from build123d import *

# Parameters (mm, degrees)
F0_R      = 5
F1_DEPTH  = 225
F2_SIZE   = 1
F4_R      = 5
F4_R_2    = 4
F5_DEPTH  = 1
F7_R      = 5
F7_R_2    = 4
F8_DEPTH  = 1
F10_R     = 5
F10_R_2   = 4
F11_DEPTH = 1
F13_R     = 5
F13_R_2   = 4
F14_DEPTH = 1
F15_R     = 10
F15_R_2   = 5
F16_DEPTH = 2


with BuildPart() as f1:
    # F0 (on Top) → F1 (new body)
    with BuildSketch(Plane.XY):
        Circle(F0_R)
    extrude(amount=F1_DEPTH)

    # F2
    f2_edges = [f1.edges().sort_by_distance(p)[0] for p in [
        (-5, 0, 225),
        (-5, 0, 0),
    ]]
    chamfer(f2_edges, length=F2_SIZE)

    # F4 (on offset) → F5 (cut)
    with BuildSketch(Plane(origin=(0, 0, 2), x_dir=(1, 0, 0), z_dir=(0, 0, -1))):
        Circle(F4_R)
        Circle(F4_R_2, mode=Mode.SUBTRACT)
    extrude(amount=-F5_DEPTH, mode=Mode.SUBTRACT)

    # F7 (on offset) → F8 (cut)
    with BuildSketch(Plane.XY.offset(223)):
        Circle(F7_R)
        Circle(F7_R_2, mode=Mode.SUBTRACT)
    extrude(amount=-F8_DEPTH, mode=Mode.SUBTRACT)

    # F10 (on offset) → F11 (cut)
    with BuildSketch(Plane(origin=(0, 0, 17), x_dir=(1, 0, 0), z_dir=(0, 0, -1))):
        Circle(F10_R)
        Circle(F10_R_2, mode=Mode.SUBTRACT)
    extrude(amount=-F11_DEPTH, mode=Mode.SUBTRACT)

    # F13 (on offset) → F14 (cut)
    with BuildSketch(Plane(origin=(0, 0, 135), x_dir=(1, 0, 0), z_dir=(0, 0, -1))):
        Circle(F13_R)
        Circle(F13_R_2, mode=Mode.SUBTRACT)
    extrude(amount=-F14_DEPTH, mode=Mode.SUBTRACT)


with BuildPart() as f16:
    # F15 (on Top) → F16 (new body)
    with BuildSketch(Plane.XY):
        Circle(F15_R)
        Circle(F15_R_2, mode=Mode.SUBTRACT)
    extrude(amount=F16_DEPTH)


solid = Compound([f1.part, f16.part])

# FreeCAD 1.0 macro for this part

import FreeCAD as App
import Part
import Sketcher


def edges_at(feature, points):
    """Names of the edges that pass closest to the given points."""
    edges = feature.Shape.Edges
    near = lambda p: min(range(len(edges)), key=lambda i: edges[i].distToShape(Part.Vertex(*p))[0])
    return sorted({f"Edge{near(p) + 1}" for p in points})

doc = App.newDocument("Part")
params = doc.addObject("Spreadsheet::Sheet", "Params")
for row, (alias, value) in enumerate([
    ("sketch1_diameter", "10 mm"),
    ("pad1_length", "225 mm"),
    ("chamfer_size", "1 mm"),
    ("sketch2_diameter", "10 mm"),
    ("sketch2_diameter2", "8 mm"),
    ("pocket1_length", "1 mm"),
    ("sketch3_diameter", "10 mm"),
    ("sketch3_diameter2", "8 mm"),
    ("pocket2_length", "1 mm"),
    ("sketch4_diameter", "10 mm"),
    ("sketch4_diameter2", "8 mm"),
    ("pocket3_length", "1 mm"),
    ("sketch5_diameter", "10 mm"),
    ("sketch5_diameter2", "8 mm"),
    ("pocket4_length", "1 mm"),
    ("sketch6_diameter", "20 mm"),
    ("sketch6_diameter2", "10 mm"),
    ("pad2_length", "2 mm"),
], start=1):
    params.set(f"A{row}", alias)
    params.set(f"B{row}", "=" + value)
    params.setAlias(f"B{row}", alias)

body = doc.addObject("PartDesign::Body", "Body")

# Sketch on XY plane
sketch1 = body.newObject("Sketcher::SketchObject", "Sketch")
sketch1.AttachmentSupport = (doc.getObject("XY_Plane"), [""])
sketch1.MapMode = "FlatFace"
sketch1.addGeometry(Part.Circle(App.Vector(0, 0, 0), App.Vector(0, 0, 1), 5), False)
sketch1.addConstraint([
    Sketcher.Constraint("Coincident", 0, 3, -1, 1),
    Sketcher.Constraint("Diameter", 0, 10.0),
])
sketch1.setExpression("Constraints[1]", "Params.sketch1_diameter")
pad1 = body.newObject("PartDesign::Pad", "Pad")
pad1.Profile = sketch1
pad1.setExpression("Length", "Params.pad1_length")
doc.recompute()

chamfer = body.newObject("PartDesign::Chamfer", "Chamfer")
chamfer.Base = (pad1, edges_at(pad1, [(-5, 0, 225), (-5, 0, 0)]))
chamfer.setExpression("Size", "Params.chamfer_size")

# Sketch on XY plane
sketch2 = body.newObject("Sketcher::SketchObject", "Sketch001")
sketch2.AttachmentSupport = (doc.getObject("XY_Plane"), [""])
sketch2.MapMode = "FlatFace"
sketch2.AttachmentOffset = App.Placement(App.Vector(0, 0, 2), App.Rotation())
sketch2.addGeometry([
    Part.Circle(App.Vector(0, 0, 0), App.Vector(0, 0, 1), 5),
    Part.Circle(App.Vector(0, 0, 0), App.Vector(0, 0, 1), 4),
], False)
sketch2.addConstraint([
    Sketcher.Constraint("Coincident", 0, 3, -1, 1),
    Sketcher.Constraint("Coincident", 1, 3, -1, 1),
    Sketcher.Constraint("Diameter", 0, 10.0),
    Sketcher.Constraint("Diameter", 1, 8.0),
])
sketch2.setExpression("Constraints[2]", "Params.sketch2_diameter")
sketch2.setExpression("Constraints[3]", "Params.sketch2_diameter2")
pocket1 = body.newObject("PartDesign::Pocket", "Pocket")
pocket1.Profile = sketch2
pocket1.setExpression("Length", "Params.pocket1_length")
pocket1.Reversed = True

# Sketch on XY plane
sketch3 = body.newObject("Sketcher::SketchObject", "Sketch002")
sketch3.AttachmentSupport = (doc.getObject("XY_Plane"), [""])
sketch3.MapMode = "FlatFace"
sketch3.AttachmentOffset = App.Placement(App.Vector(0, 0, 223), App.Rotation())
sketch3.addGeometry([
    Part.Circle(App.Vector(0, 0, 0), App.Vector(0, 0, 1), 5),
    Part.Circle(App.Vector(0, 0, 0), App.Vector(0, 0, 1), 4),
], False)
sketch3.addConstraint([
    Sketcher.Constraint("Coincident", 0, 3, -1, 1),
    Sketcher.Constraint("Coincident", 1, 3, -1, 1),
    Sketcher.Constraint("Diameter", 0, 10.0),
    Sketcher.Constraint("Diameter", 1, 8.0),
])
sketch3.setExpression("Constraints[2]", "Params.sketch3_diameter")
sketch3.setExpression("Constraints[3]", "Params.sketch3_diameter2")
pocket2 = body.newObject("PartDesign::Pocket", "Pocket001")
pocket2.Profile = sketch3
pocket2.setExpression("Length", "Params.pocket2_length")

# Sketch on XY plane
sketch4 = body.newObject("Sketcher::SketchObject", "Sketch003")
sketch4.AttachmentSupport = (doc.getObject("XY_Plane"), [""])
sketch4.MapMode = "FlatFace"
sketch4.AttachmentOffset = App.Placement(App.Vector(0, 0, 17), App.Rotation())
sketch4.addGeometry([
    Part.Circle(App.Vector(0, 0, 0), App.Vector(0, 0, 1), 5),
    Part.Circle(App.Vector(0, 0, 0), App.Vector(0, 0, 1), 4),
], False)
sketch4.addConstraint([
    Sketcher.Constraint("Coincident", 0, 3, -1, 1),
    Sketcher.Constraint("Coincident", 1, 3, -1, 1),
    Sketcher.Constraint("Diameter", 0, 10.0),
    Sketcher.Constraint("Diameter", 1, 8.0),
])
sketch4.setExpression("Constraints[2]", "Params.sketch4_diameter")
sketch4.setExpression("Constraints[3]", "Params.sketch4_diameter2")
pocket3 = body.newObject("PartDesign::Pocket", "Pocket002")
pocket3.Profile = sketch4
pocket3.setExpression("Length", "Params.pocket3_length")
pocket3.Reversed = True

# Sketch on XY plane
sketch5 = body.newObject("Sketcher::SketchObject", "Sketch004")
sketch5.AttachmentSupport = (doc.getObject("XY_Plane"), [""])
sketch5.MapMode = "FlatFace"
sketch5.AttachmentOffset = App.Placement(App.Vector(0, 0, 135), App.Rotation())
sketch5.addGeometry([
    Part.Circle(App.Vector(0, 0, 0), App.Vector(0, 0, 1), 5),
    Part.Circle(App.Vector(0, 0, 0), App.Vector(0, 0, 1), 4),
], False)
sketch5.addConstraint([
    Sketcher.Constraint("Coincident", 0, 3, -1, 1),
    Sketcher.Constraint("Coincident", 1, 3, -1, 1),
    Sketcher.Constraint("Diameter", 0, 10.0),
    Sketcher.Constraint("Diameter", 1, 8.0),
])
sketch5.setExpression("Constraints[2]", "Params.sketch5_diameter")
sketch5.setExpression("Constraints[3]", "Params.sketch5_diameter2")
pocket4 = body.newObject("PartDesign::Pocket", "Pocket003")
pocket4.Profile = sketch5
pocket4.setExpression("Length", "Params.pocket4_length")
pocket4.Reversed = True
body2 = doc.addObject("PartDesign::Body", "Body001")

# Sketch on XY plane
sketch6 = body2.newObject("Sketcher::SketchObject", "Sketch005")
sketch6.AttachmentSupport = (doc.getObject("XY_Plane001"), [""])
sketch6.MapMode = "FlatFace"
sketch6.addGeometry([
    Part.Circle(App.Vector(0, 0, 0), App.Vector(0, 0, 1), 10),
    Part.Circle(App.Vector(0, 0, 0), App.Vector(0, 0, 1), 5),
], False)
sketch6.addConstraint([
    Sketcher.Constraint("Coincident", 0, 3, -1, 1),
    Sketcher.Constraint("Coincident", 1, 3, -1, 1),
    Sketcher.Constraint("Diameter", 0, 20.0),
    Sketcher.Constraint("Diameter", 1, 10.0),
])
sketch6.setExpression("Constraints[2]", "Params.sketch6_diameter")
sketch6.setExpression("Constraints[3]", "Params.sketch6_diameter2")
pad2 = body2.newObject("PartDesign::Pad", "Pad001")
pad2.Profile = sketch6
pad2.setExpression("Length", "Params.pad2_length")

doc.recompute()
